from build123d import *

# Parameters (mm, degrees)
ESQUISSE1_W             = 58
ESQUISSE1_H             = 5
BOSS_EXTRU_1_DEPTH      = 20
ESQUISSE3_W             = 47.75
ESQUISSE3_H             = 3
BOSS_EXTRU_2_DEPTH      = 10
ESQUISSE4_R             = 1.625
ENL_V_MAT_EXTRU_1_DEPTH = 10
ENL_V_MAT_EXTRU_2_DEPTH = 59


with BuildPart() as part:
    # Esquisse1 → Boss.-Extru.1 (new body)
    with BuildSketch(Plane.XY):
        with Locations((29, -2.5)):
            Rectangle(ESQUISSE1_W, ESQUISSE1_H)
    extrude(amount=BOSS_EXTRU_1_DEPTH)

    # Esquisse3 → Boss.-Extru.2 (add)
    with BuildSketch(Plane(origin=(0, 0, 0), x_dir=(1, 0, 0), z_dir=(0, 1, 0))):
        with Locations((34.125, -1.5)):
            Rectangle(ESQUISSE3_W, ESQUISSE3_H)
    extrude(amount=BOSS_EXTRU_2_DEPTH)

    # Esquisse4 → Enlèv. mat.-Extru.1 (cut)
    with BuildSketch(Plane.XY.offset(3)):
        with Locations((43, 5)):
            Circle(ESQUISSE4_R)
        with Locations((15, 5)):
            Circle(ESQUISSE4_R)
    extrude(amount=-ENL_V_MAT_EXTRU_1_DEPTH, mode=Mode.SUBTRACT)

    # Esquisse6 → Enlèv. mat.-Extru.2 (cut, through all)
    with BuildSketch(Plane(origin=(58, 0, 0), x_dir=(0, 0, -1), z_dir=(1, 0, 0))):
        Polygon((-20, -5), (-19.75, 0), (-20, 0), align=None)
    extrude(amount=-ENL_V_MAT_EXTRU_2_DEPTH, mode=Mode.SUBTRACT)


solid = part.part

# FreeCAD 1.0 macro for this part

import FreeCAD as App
import Part
import Sketcher

V = App.Vector

doc = App.newDocument("Part")
body = doc.addObject("PartDesign::Body", "Body")

sketch1 = doc.addObject("Sketcher::SketchObject", "Sketch")
body.addObject(sketch1)
sketch1.AttachmentSupport = (doc.XY_Plane, [""])
sketch1.MapMode = "FlatFace"
sketch1.addGeometry(Part.LineSegment(V(0, 0, 0), V(0, -5, 0)), False)
sketch1.addGeometry(Part.LineSegment(V(0, -5, 0), V(58, -5, 0)), False)
sketch1.addGeometry(Part.LineSegment(V(58, -5, 0), V(58, 0, 0)), False)
sketch1.addGeometry(Part.LineSegment(V(58, 0, 0), V(0, 0, 0)), False)
sketch1.addConstraint(Sketcher.Constraint("Coincident", 0, 2, 1, 1))
sketch1.addConstraint(Sketcher.Constraint("Coincident", 1, 2, 2, 1))
sketch1.addConstraint(Sketcher.Constraint("Coincident", 2, 2, 3, 1))
sketch1.addConstraint(Sketcher.Constraint("Coincident", 3, 2, 0, 1))
sketch1.addConstraint(Sketcher.Constraint("Vertical", 0))
sketch1.addConstraint(Sketcher.Constraint("Horizontal", 1))
sketch1.addConstraint(Sketcher.Constraint("Vertical", 2))
sketch1.addConstraint(Sketcher.Constraint("Horizontal", 3))
sketch1.addConstraint(Sketcher.Constraint("Coincident", 3, 2, -1, 1))
sketch1.addConstraint(Sketcher.Constraint("DistanceX", 1, 1, 1, 2, 58.0))
sketch1.addConstraint(Sketcher.Constraint("DistanceY", 0, 2, 0, 1, 5.0))
pad1 = doc.addObject("PartDesign::Pad", "Pad")
body.addObject(pad1)
pad1.Profile = sketch1
pad1.Length = 20

sketch2 = doc.addObject("Sketcher::SketchObject", "Sketch001")
body.addObject(sketch2)
sketch2.AttachmentSupport = (doc.XZ_Plane, [""])
sketch2.MapMode = "FlatFace"
sketch2.addGeometry(Part.LineSegment(V(10.2, 0, 0), V(10.2, 3, 0)), False)
sketch2.addGeometry(Part.LineSegment(V(10.2, 3, 0), V(58, 3, 0)), False)
sketch2.addGeometry(Part.LineSegment(V(58, 3, 0), V(58, 0, 0)), False)
sketch2.addGeometry(Part.LineSegment(V(58, 0, 0), V(10.2, 0, 0)), False)
sketch2.addConstraint(Sketcher.Constraint("Coincident", 0, 2, 1, 1))
sketch2.addConstraint(Sketcher.Constraint("Coincident", 1, 2, 2, 1))
sketch2.addConstraint(Sketcher.Constraint("Coincident", 2, 2, 3, 1))
sketch2.addConstraint(Sketcher.Constraint("Coincident", 3, 2, 0, 1))
sketch2.addConstraint(Sketcher.Constraint("Vertical", 0))
sketch2.addConstraint(Sketcher.Constraint("Horizontal", 1))
sketch2.addConstraint(Sketcher.Constraint("Vertical", 2))
sketch2.addConstraint(Sketcher.Constraint("Horizontal", 3))
sketch2.addConstraint(Sketcher.Constraint("PointOnObject", 2, 2, -1))
sketch2.addConstraint(Sketcher.Constraint("DistanceY", 0, 1, 0, 2, 3.0))
sketch2.addConstraint(Sketcher.Constraint("DistanceX", -1, 1, 1, 2, 58.0))
sketch2.addConstraint(Sketcher.Constraint("DistanceX", 1, 1, 1, 2, 47.75))
pad2 = doc.addObject("PartDesign::Pad", "Pad001")
body.addObject(pad2)
pad2.Profile = sketch2
pad2.Length = 10
pad2.Reversed = True

sketch3 = doc.addObject("Sketcher::SketchObject", "Sketch002")
body.addObject(sketch3)
sketch3.AttachmentSupport = (doc.XY_Plane, [""])
sketch3.MapMode = "FlatFace"
sketch3.AttachmentOffset = App.Placement(V(0, 0, 3), App.Rotation())
sketch3.addGeometry(Part.Circle(V(43, 5, 0), V(0, 0, 1), 1.6), False)
sketch3.addGeometry(Part.Circle(V(15, 5, 0), V(0, 0, 1), 1.6), False)
sketch3.addConstraint(Sketcher.Constraint("Equal", 0, 1))
sketch3.addConstraint(Sketcher.Constraint("Horizontal", 0, 3, 1, 3))
sketch3.addConstraint(Sketcher.Constraint("Diameter", 0, 3.25))
sketch3.addConstraint(Sketcher.Constraint("DistanceX", -1, 1, 0, 3, 43.0))
sketch3.addConstraint(Sketcher.Constraint("DistanceY", -1, 1, 0, 3, 5.0))
sketch3.addConstraint(Sketcher.Constraint("DistanceX", -1, 1, 1, 3, 15.0))
pocket1 = doc.addObject("PartDesign::Pocket", "Pocket")
body.addObject(pocket1)
pocket1.Profile = sketch3
pocket1.Length = 10

sketch4 = doc.addObject("Sketcher::SketchObject", "Sketch003")
body.addObject(sketch4)
sketch4.AttachmentSupport = (doc.YZ_Plane, [""])
sketch4.MapMode = "FlatFace"
sketch4.AttachmentOffset = App.Placement(V(0, 0, 58), App.Rotation())
sketch4.addGeometry(Part.LineSegment(V(-5, 20, 0), V(0, 19.75, 0)), False)
sketch4.addGeometry(Part.LineSegment(V(0, 19.75, 0), V(0, 20, 0)), False)
sketch4.addGeometry(Part.LineSegment(V(0, 20, 0), V(-5, 20, 0)), False)
sketch4.addConstraint(Sketcher.Constraint("Coincident", 0, 2, 1, 1))
sketch4.addConstraint(Sketcher.Constraint("Coincident", 1, 2, 2, 1))
sketch4.addConstraint(Sketcher.Constraint("Coincident", 2, 2, 0, 1))
sketch4.addConstraint(Sketcher.Constraint("Vertical", 1))
sketch4.addConstraint(Sketcher.Constraint("Horizontal", 2))
sketch4.addConstraint(Sketcher.Constraint("PointOnObject", 0, 2, -2))
sketch4.addConstraint(Sketcher.Constraint("DistanceX", 2, 2, 2, 1, 5.0))
sketch4.addConstraint(Sketcher.Constraint("DistanceY", -1, 1, 1, 2, 20.0))
sketch4.addConstraint(Sketcher.Constraint("DistanceY", 1, 1, 1, 2, 0.25))
pocket2 = doc.addObject("PartDesign::Pocket", "Pocket001")
body.addObject(pocket2)
pocket2.Profile = sketch4
pocket2.Type = "ThroughAll"

doc.recompute()
